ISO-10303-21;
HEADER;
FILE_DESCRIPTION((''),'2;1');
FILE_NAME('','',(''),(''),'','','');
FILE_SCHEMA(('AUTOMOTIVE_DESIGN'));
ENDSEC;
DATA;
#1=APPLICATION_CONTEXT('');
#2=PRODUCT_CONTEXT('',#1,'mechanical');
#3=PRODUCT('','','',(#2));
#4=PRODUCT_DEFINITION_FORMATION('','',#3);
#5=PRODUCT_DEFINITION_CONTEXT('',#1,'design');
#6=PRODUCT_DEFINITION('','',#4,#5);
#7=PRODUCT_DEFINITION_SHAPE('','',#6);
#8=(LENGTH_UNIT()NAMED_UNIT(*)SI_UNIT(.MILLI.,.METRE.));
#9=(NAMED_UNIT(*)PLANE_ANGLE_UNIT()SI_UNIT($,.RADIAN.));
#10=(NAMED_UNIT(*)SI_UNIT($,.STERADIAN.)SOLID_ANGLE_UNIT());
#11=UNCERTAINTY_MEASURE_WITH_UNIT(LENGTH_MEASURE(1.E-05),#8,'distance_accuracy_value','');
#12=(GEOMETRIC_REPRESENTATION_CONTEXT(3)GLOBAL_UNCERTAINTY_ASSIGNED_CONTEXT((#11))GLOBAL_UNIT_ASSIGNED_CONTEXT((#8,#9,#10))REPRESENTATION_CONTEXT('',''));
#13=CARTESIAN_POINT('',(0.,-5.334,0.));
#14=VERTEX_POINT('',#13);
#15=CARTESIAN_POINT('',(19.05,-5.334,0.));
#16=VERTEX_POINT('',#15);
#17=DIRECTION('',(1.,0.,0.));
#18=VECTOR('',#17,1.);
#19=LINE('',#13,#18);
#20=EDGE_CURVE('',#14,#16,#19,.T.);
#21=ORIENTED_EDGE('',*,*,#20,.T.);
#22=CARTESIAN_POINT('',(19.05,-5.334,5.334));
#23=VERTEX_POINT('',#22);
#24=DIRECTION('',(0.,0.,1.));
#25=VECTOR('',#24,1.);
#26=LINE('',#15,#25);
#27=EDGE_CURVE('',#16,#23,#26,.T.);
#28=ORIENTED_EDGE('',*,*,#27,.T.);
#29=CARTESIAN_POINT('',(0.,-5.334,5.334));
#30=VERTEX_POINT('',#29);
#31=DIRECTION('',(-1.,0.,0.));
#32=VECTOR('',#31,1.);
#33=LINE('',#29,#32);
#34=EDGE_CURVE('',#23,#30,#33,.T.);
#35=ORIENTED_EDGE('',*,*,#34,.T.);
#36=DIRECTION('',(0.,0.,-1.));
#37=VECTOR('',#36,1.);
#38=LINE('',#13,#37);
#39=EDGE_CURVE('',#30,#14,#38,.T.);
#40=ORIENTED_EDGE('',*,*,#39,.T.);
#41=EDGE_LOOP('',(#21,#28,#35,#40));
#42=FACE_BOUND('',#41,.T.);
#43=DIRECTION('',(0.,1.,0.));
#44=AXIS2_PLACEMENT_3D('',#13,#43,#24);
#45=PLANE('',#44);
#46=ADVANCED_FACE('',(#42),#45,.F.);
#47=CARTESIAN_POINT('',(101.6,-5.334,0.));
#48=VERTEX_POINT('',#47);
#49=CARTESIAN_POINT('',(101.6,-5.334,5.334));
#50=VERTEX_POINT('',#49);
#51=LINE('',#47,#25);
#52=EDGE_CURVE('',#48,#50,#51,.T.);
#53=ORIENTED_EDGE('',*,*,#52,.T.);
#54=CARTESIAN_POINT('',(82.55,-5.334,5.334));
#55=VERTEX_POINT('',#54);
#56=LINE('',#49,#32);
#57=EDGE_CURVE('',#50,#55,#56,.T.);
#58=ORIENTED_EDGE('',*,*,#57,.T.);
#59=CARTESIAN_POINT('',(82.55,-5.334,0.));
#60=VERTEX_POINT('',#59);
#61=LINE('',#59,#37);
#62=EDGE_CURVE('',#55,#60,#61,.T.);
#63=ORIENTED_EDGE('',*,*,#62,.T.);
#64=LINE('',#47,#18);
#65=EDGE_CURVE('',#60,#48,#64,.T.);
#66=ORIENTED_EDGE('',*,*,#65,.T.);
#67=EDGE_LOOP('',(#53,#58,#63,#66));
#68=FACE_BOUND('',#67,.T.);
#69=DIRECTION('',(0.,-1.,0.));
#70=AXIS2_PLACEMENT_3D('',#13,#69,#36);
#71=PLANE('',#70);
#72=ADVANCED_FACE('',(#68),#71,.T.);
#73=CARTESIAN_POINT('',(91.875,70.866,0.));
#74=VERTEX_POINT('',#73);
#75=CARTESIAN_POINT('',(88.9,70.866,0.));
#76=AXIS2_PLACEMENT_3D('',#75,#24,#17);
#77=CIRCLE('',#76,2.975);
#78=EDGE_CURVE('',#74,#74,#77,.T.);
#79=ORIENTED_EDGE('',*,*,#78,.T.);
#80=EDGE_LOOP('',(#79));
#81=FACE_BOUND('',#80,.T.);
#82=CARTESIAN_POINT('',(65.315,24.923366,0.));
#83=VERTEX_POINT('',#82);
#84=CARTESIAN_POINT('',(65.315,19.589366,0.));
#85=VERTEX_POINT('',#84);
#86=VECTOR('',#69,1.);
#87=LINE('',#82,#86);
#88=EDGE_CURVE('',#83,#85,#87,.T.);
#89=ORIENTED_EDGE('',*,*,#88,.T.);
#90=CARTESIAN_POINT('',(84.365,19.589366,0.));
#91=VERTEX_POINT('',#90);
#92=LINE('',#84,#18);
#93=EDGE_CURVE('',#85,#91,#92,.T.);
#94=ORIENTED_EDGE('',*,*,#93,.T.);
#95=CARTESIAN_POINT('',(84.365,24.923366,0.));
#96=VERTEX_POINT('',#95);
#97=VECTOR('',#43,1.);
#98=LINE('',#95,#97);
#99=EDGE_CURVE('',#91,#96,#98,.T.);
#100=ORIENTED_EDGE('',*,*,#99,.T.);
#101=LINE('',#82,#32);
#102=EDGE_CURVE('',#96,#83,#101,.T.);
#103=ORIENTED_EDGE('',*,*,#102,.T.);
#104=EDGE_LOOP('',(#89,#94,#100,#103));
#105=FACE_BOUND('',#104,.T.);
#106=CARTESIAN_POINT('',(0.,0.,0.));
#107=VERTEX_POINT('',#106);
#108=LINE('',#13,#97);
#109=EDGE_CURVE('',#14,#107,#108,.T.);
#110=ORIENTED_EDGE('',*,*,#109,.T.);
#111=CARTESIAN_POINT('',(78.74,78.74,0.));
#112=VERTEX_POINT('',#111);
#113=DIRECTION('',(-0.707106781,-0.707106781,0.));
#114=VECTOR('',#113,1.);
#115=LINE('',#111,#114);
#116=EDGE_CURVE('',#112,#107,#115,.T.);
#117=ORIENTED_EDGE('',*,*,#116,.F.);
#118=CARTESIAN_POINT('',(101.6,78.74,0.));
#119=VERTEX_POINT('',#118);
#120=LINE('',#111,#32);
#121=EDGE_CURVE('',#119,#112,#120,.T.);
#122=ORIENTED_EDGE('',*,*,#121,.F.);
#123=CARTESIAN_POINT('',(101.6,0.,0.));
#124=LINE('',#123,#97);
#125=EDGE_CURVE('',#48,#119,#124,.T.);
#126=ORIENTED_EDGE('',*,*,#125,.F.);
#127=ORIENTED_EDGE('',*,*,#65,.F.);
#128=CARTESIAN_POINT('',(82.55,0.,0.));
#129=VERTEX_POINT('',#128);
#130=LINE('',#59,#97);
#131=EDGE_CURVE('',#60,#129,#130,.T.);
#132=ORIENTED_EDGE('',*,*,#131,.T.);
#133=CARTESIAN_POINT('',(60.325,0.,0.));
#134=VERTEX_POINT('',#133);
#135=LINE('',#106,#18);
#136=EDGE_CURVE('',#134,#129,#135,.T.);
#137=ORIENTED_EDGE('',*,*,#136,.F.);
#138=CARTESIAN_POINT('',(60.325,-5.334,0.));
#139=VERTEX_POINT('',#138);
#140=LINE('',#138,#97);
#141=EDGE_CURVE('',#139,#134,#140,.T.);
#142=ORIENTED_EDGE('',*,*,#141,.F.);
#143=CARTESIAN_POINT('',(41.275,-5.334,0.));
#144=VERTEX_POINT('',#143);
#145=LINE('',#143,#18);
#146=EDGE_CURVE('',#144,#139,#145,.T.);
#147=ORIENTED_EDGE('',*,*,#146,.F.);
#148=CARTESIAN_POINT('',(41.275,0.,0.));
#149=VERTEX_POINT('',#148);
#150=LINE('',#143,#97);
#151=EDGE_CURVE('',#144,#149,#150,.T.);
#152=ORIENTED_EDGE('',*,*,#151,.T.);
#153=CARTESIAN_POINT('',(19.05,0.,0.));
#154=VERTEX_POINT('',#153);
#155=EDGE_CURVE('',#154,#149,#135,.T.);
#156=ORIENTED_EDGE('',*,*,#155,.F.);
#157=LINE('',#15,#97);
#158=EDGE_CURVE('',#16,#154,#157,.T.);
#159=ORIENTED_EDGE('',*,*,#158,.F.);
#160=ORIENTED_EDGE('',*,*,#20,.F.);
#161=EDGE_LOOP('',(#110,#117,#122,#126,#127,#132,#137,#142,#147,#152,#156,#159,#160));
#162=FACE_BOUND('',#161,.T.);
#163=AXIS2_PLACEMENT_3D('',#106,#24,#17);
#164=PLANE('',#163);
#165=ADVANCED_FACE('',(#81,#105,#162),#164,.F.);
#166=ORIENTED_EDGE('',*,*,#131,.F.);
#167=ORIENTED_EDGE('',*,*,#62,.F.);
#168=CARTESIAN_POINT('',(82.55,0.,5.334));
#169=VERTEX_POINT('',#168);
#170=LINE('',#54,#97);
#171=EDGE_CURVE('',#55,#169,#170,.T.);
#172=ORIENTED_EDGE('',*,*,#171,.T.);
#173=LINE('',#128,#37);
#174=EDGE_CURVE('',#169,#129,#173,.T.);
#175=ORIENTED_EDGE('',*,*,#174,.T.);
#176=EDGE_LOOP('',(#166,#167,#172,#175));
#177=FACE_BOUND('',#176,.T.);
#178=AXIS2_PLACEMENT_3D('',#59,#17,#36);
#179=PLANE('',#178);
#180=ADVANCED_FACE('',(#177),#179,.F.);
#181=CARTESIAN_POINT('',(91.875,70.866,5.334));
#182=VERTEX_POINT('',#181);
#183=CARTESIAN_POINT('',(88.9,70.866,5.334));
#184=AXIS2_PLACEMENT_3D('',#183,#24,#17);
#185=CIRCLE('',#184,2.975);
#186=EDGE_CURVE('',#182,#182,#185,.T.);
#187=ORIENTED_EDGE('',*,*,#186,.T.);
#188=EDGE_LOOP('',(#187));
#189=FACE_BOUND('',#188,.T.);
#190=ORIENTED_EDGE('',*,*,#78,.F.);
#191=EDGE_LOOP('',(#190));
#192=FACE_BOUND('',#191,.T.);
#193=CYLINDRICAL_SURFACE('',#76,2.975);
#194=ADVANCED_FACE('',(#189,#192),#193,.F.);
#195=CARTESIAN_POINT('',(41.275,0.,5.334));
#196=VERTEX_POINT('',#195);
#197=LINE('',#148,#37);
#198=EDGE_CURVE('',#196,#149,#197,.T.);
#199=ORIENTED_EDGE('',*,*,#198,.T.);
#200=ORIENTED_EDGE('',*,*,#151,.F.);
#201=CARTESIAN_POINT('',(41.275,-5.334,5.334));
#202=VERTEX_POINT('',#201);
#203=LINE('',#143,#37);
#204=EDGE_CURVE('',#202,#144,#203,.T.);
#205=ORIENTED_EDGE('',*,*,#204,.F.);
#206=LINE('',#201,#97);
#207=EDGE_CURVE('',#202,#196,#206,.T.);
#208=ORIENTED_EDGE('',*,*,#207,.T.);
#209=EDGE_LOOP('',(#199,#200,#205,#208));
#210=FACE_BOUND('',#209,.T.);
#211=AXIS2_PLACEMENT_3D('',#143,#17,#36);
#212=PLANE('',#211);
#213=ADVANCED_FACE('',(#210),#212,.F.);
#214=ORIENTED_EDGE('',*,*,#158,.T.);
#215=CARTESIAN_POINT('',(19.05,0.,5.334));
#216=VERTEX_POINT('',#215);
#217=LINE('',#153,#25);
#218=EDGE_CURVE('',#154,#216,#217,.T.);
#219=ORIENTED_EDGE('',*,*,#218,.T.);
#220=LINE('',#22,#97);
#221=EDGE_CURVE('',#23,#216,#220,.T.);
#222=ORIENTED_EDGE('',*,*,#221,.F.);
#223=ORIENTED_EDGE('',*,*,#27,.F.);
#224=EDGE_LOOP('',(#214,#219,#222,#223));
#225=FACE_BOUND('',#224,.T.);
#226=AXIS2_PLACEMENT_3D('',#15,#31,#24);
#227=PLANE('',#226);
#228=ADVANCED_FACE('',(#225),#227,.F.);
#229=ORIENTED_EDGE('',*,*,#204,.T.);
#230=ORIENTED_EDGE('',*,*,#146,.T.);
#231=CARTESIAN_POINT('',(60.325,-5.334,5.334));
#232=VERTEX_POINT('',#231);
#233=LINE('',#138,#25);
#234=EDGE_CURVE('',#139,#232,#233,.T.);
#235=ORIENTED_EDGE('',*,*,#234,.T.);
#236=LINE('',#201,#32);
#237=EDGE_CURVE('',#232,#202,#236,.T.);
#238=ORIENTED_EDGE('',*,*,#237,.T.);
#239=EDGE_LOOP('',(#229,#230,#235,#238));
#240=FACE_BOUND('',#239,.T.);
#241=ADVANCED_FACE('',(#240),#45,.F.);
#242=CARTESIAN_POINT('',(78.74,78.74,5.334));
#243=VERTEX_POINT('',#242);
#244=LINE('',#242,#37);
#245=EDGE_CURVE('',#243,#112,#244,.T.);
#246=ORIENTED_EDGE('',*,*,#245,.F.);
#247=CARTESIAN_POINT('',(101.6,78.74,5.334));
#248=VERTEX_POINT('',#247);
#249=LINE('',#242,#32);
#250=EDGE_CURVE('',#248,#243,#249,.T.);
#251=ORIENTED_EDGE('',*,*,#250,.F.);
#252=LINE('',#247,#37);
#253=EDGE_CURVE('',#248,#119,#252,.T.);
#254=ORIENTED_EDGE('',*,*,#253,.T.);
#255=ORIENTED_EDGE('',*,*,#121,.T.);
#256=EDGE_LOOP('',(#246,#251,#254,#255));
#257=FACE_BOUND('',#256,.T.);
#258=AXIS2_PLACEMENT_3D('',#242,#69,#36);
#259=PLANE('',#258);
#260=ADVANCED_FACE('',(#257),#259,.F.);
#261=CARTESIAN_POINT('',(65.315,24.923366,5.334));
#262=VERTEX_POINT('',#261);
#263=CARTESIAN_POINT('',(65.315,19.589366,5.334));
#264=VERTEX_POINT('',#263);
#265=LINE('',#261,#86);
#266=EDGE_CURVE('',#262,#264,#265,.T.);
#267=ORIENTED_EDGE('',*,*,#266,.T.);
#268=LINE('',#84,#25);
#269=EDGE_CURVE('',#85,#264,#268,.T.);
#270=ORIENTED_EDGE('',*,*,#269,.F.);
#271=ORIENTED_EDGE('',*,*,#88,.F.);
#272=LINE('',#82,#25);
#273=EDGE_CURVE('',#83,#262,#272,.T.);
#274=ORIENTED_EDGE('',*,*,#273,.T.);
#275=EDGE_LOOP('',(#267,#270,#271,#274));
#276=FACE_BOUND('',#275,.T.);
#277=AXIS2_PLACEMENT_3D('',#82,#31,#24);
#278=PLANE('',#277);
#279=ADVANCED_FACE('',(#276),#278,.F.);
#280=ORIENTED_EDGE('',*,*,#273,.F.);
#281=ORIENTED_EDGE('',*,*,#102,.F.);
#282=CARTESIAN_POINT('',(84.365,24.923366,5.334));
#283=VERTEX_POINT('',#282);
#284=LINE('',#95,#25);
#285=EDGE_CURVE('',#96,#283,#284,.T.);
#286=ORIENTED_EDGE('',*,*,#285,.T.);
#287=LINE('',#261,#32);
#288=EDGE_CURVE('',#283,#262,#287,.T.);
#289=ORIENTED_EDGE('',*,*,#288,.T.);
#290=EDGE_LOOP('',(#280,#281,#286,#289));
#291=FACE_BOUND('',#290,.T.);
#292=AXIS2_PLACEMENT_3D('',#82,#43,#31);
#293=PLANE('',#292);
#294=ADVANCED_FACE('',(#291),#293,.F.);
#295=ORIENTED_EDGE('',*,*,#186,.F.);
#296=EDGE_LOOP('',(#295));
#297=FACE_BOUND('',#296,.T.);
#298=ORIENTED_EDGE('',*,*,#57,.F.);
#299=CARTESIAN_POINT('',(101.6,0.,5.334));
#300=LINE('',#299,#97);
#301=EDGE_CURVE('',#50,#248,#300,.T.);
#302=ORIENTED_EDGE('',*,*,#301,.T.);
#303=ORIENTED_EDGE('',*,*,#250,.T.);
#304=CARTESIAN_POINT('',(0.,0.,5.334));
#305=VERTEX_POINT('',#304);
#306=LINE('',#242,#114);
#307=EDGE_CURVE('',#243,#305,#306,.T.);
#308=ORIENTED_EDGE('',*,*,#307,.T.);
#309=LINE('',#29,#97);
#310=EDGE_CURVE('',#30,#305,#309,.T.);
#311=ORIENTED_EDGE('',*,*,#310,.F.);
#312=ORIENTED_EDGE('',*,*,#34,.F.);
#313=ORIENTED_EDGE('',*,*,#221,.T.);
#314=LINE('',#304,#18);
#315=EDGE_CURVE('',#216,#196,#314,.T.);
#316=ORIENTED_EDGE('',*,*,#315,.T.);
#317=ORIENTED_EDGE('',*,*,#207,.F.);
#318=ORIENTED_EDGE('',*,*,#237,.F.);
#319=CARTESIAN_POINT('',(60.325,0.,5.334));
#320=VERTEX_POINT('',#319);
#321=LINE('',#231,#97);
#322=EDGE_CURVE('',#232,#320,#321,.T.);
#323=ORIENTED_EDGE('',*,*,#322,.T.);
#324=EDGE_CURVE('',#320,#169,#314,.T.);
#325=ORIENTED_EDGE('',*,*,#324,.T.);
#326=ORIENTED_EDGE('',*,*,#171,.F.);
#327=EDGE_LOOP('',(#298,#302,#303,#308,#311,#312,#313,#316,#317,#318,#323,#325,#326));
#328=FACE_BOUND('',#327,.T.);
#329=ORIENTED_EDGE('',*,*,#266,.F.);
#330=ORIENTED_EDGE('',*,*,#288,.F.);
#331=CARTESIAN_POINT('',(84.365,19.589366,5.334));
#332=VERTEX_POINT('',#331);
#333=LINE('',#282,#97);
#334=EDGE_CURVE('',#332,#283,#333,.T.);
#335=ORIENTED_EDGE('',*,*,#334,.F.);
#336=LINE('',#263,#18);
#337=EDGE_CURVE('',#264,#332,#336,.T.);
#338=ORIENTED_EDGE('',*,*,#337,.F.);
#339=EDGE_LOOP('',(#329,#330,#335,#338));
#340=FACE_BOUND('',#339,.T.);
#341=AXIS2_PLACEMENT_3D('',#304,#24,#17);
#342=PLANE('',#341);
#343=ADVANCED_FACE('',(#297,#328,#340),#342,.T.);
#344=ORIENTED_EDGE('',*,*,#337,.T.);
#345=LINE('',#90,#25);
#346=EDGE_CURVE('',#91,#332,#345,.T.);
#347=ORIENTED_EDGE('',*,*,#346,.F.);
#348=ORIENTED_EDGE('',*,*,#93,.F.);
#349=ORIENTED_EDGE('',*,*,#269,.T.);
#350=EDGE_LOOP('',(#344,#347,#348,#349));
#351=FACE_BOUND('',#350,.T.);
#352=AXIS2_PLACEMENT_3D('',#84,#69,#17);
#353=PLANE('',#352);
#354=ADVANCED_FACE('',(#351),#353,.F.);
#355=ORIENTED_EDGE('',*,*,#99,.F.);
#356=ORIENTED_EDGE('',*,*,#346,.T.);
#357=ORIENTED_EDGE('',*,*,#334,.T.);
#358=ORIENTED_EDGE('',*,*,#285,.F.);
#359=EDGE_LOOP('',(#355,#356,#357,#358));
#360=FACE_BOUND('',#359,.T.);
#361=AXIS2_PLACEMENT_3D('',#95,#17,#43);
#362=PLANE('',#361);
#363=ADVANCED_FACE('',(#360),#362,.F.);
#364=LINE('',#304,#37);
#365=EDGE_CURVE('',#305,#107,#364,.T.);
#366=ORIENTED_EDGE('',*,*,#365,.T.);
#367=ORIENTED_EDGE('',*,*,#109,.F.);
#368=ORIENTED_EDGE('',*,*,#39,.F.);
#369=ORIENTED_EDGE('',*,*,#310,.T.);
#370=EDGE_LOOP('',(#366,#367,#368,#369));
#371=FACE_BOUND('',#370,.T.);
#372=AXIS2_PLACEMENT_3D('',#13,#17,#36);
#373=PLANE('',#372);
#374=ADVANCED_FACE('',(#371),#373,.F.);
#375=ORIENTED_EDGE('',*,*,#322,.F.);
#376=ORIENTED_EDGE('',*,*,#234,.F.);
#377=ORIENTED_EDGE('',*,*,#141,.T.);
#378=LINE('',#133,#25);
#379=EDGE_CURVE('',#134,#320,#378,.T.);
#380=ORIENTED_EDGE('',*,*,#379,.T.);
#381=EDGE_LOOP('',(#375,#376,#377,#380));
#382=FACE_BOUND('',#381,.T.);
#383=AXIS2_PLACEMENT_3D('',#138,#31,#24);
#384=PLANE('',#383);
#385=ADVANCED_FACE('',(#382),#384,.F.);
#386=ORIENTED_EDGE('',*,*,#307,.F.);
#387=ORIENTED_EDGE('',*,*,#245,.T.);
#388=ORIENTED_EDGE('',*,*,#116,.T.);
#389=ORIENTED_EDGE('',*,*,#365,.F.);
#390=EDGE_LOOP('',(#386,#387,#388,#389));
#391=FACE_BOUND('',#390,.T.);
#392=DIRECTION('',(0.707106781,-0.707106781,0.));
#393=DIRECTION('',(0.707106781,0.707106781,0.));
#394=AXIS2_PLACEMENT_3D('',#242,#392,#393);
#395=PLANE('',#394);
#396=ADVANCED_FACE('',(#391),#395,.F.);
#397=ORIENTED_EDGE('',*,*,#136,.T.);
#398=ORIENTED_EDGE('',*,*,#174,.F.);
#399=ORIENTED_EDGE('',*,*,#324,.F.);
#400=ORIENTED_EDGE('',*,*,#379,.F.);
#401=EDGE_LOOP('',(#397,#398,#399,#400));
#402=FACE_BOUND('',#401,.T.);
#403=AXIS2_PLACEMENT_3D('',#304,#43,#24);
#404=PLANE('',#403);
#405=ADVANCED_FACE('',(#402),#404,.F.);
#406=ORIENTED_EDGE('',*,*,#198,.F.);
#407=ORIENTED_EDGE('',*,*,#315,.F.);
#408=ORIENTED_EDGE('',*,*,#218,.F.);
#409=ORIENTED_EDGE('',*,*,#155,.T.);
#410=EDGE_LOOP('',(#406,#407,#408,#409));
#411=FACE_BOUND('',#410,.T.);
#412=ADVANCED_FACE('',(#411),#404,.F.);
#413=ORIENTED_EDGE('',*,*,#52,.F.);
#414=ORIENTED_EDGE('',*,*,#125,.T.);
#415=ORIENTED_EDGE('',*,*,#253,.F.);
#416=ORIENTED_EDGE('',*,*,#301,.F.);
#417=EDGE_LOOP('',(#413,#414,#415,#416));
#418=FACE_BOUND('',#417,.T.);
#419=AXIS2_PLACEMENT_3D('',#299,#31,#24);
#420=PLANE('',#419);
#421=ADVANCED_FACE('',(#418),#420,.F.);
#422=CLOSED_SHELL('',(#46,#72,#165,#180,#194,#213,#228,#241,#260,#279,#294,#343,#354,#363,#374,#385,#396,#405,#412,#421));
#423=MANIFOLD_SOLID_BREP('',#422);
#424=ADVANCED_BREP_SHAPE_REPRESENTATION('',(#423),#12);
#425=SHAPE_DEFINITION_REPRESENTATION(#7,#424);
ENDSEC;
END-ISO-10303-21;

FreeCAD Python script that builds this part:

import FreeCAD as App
import Part
import Sketcher
Q = App.Units.Quantity


def add_polygon(sketch, points):
    """Adds a closed chain of lines whose ends are joined by coincident constraints."""
    first, n = sketch.GeometryCount, len(points)
    for a, b in zip(points, points[1:] + points[:1]):
        sketch.addGeometry(Part.LineSegment(App.Vector(*a, 0), App.Vector(*b, 0)), False)
    for i in range(n):
        sketch.addConstraint(Sketcher.Constraint("Coincident", first + i, 2, first + (i + 1) % n, 1))

doc = App.newDocument("Part")
body = doc.addObject("PartDesign::Body", "Body")

# Sketch on XY plane
sketch1 = body.newObject("Sketcher::SketchObject", "Sketch")
sketch1.AttachmentSupport = (doc.getObject("XY_Plane"), [""])
sketch1.MapMode = "FlatFace"
add_polygon(sketch1, [(79, 79), (0, 0), (102, 0), (102, 79)])  # lines 0-3
sketch1.addConstraint(Sketcher.Constraint("Horizontal", 1))
sketch1.addConstraint(Sketcher.Constraint("Vertical", 2))
sketch1.addConstraint(Sketcher.Constraint("Horizontal", 3))
sketch1.addConstraint(Sketcher.Constraint("Coincident", 0, 2, -1, 1))
sketch1.addConstraint(Sketcher.Constraint("DistanceX", 1, 1, 1, 2, Q("4 in")))
sketch1.addConstraint(Sketcher.Constraint("DistanceX", 3, 2, 3, 1, Q("0.9 in")))
sketch1.addConstraint(Sketcher.Constraint("DistanceY", 2, 1, 2, 2, Q("3.1 in")))
pad1 = body.newObject("PartDesign::Pad", "Pad")
pad1.Profile = sketch1
pad1.Length = Q("0.21 in")

# Sketch on XY plane
sketch2 = body.newObject("Sketcher::SketchObject", "Sketch001")
sketch2.AttachmentSupport = (doc.getObject("XY_Plane"), [""])
sketch2.MapMode = "FlatFace"
sketch2.AttachmentOffset = App.Placement(App.Vector(0, 0, 0.21 * 25.4), App.Rotation())
sketch2.addGeometry(Part.Circle(App.Vector(88.9, 70.9, 0), App.Vector(0, 0, 1), 3), False)  # 0
add_polygon(sketch2, [(65.3, 24.9), (65.3, 19.6), (84.4, 19.6), (84.4, 24.9)])  # lines 1-4
sketch2.addConstraint(Sketcher.Constraint("Vertical", 1))
sketch2.addConstraint(Sketcher.Constraint("Horizontal", 2))
sketch2.addConstraint(Sketcher.Constraint("Vertical", 3))
sketch2.addConstraint(Sketcher.Constraint("Horizontal", 4))
sketch2.addConstraint(Sketcher.Constraint("DistanceX", 2, 1, 2, 2, Q("0.75 in")))
sketch2.addConstraint(Sketcher.Constraint("DistanceY", 1, 2, 1, 1, Q("0.21 in")))
sketch2.addConstraint(Sketcher.Constraint("DistanceX", -1, 1, 0, 3, Q("3.5 in")))
sketch2.addConstraint(Sketcher.Constraint("Diameter", 0, 5.95))
sketch2.addConstraint(Sketcher.Constraint("DistanceY", -1, 1, 0, 3, Q("2.79 in")))
sketch2.addConstraint(Sketcher.Constraint("DistanceX", -1, 1, 1, 2, 65.315))
sketch2.addConstraint(Sketcher.Constraint("DistanceY", -1, 1, 1, 2, 19.589366))
pocket1 = body.newObject("PartDesign::Pocket", "Pocket")
pocket1.Profile = sketch2
pocket1.Type = "ThroughAll"

# Sketch on XZ plane
sketch3 = body.newObject("Sketcher::SketchObject", "Sketch002")
sketch3.AttachmentSupport = (doc.getObject("XZ_Plane"), [""])
sketch3.MapMode = "FlatFace"
add_polygon(sketch3, [(0, 5), (0, 0), (19, 0), (19, 5)])  # lines 0-3
add_polygon(sketch3, [(83, 5), (83, 0), (102, 0), (102, 5)])  # lines 4-7
add_polygon(sketch3, [(41, 5), (41, 0), (60, 0), (60, 5)])  # lines 8-11
sketch3.addConstraint(Sketcher.Constraint("Vertical", 0))
sketch3.addConstraint(Sketcher.Constraint("Horizontal", 1))
sketch3.addConstraint(Sketcher.Constraint("Vertical", 2))
sketch3.addConstraint(Sketcher.Constraint("Horizontal", 3))
sketch3.addConstraint(Sketcher.Constraint("Vertical", 4))
sketch3.addConstraint(Sketcher.Constraint("Horizontal", 5))
sketch3.addConstraint(Sketcher.Constraint("Vertical", 6))
sketch3.addConstraint(Sketcher.Constraint("Horizontal", 7))
sketch3.addConstraint(Sketcher.Constraint("Vertical", 8))
sketch3.addConstraint(Sketcher.Constraint("Horizontal", 9))
sketch3.addConstraint(Sketcher.Constraint("Vertical", 10))
sketch3.addConstraint(Sketcher.Constraint("Horizontal", 11))
sketch3.addConstraint(Sketcher.Constraint("Coincident", 0, 2, -1, 1))
sketch3.addConstraint(Sketcher.Constraint("PointOnObject", 4, 2, -1))
sketch3.addConstraint(Sketcher.Constraint("PointOnObject", 8, 2, -1))
sketch3.addConstraint(Sketcher.Constraint("Horizontal", 3, 2, 6, 2))
sketch3.addConstraint(Sketcher.Constraint("Horizontal", 7, 2, 10, 2))
sketch3.addConstraint(Sketcher.Constraint("Equal", 3, 5))
sketch3.addConstraint(Sketcher.Constraint("Equal", 7, 9))
sketch3.addConstraint(Sketcher.Constraint("DistanceX", -1, 1, 5, 2, Q("4 in")))
sketch3.addConstraint(Sketcher.Constraint("DistanceX", 1, 1, 1, 2, Q("0.75 in")))
sketch3.addConstraint(Sketcher.Constraint("DistanceY", 0, 2, 0, 1, Q("0.21 in")))
sketch3.addConstraint(Sketcher.Constraint("DistanceX", -1, 1, 8, 2, Q("1.625 in")))
pad2 = body.newObject("PartDesign::Pad", "Pad001")
pad2.Profile = sketch3
pad2.Length = Q("0.21 in")

doc.recompute()
